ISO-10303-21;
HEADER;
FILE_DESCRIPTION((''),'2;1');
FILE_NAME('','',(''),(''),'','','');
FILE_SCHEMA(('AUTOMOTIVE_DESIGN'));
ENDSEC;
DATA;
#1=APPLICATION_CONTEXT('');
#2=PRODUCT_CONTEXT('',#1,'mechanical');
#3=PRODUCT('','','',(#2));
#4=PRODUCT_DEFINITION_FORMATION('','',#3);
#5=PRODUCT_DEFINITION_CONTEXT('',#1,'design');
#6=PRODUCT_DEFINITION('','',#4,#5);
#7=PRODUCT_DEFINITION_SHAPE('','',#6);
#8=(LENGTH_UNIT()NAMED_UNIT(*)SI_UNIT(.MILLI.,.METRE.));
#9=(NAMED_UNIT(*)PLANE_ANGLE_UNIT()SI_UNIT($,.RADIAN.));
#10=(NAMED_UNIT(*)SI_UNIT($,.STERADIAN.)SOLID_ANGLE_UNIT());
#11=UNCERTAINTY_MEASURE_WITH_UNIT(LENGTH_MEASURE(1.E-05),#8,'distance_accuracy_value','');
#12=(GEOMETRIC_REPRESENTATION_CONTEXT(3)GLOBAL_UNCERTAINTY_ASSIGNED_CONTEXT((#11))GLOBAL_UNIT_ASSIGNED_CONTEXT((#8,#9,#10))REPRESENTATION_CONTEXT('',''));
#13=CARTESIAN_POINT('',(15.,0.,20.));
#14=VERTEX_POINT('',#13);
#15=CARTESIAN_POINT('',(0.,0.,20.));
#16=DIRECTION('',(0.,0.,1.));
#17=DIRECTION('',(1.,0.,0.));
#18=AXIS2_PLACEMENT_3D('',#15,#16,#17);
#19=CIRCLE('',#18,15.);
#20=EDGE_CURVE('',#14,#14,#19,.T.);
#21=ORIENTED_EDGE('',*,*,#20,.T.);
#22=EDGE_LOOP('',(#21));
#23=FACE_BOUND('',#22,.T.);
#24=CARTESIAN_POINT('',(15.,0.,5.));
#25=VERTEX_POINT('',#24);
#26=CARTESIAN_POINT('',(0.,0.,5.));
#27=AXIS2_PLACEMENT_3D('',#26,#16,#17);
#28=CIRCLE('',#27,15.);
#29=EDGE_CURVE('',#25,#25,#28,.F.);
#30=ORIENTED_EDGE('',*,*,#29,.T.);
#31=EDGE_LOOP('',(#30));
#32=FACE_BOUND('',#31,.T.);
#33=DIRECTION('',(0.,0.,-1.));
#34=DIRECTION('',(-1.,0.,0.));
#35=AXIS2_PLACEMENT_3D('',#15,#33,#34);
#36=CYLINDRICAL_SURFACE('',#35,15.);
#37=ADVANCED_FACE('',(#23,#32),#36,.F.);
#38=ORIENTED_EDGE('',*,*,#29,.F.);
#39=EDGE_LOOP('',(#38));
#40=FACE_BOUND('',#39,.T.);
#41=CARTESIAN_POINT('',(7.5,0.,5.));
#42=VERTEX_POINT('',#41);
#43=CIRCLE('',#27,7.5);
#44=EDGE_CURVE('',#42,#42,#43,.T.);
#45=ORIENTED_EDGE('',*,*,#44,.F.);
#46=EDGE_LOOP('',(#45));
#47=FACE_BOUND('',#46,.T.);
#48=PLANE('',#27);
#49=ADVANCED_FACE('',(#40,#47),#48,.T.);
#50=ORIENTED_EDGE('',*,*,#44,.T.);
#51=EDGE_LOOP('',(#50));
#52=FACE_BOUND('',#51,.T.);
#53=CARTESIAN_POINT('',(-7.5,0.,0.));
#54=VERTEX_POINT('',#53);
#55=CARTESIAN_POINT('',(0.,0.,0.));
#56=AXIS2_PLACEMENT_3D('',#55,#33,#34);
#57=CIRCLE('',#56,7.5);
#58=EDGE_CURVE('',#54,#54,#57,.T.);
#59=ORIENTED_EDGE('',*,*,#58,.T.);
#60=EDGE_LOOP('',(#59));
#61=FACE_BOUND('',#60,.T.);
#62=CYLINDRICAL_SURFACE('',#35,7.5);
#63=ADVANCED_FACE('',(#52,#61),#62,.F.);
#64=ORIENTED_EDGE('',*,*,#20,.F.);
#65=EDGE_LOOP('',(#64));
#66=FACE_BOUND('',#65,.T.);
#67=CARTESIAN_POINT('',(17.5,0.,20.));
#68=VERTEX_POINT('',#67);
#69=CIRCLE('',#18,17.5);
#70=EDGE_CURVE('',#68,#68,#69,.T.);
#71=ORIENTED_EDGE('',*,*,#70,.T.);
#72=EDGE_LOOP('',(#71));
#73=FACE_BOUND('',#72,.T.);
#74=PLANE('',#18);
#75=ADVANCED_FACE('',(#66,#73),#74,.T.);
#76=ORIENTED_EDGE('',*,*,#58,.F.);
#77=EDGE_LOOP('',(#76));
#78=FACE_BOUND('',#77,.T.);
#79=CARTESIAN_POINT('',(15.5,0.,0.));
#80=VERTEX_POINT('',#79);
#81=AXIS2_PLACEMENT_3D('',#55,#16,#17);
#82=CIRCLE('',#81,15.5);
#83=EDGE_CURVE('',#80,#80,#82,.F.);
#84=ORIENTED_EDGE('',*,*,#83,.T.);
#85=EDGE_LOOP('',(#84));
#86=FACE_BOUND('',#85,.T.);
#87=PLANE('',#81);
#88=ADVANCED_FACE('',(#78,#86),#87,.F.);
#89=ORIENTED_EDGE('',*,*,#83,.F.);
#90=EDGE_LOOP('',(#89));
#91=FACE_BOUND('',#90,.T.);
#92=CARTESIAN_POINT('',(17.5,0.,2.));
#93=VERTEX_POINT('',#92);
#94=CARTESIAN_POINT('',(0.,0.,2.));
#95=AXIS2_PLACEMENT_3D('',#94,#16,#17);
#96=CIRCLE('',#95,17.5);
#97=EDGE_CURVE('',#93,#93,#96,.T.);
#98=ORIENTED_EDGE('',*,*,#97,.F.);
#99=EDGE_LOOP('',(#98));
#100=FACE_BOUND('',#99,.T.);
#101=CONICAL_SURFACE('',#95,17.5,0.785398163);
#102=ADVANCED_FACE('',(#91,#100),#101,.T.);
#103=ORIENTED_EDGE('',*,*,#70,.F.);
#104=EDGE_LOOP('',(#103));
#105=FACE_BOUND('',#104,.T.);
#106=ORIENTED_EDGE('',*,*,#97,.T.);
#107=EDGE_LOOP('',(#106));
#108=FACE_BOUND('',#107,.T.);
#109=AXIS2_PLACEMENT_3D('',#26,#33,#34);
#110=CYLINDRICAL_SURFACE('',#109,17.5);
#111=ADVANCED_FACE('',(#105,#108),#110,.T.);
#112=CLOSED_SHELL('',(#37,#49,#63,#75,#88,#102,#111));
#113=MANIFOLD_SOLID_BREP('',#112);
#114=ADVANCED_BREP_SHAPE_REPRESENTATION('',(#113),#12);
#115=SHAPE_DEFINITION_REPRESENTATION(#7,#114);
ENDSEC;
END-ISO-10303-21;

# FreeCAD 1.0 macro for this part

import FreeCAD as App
import Part
import Sketcher
from FreeCAD import Vector


def edges_at(feature, points):
    """Names of the edges that pass closest to the given points."""
    edges = feature.Shape.Edges
    near = lambda p: min(range(len(edges)), key=lambda i: edges[i].distToShape(Part.Vertex(*p))[0])
    return sorted({f"Edge{near(p) + 1}" for p in points})

doc = App.newDocument("Part")
body = doc.addObject("PartDesign::Body", "Body")

sketch1 = doc.addObject("Sketcher::SketchObject", "Sketch")
body.addObject(sketch1)
sketch1.AttachmentSupport = (doc.XY_Plane, [""])
sketch1.MapMode = "FlatFace"
sketch1.addGeometry(Part.Circle(Vector(0, 0, 0), Vector(0, 0, 1), 18), False)
sketch1.addConstraint([
    Sketcher.Constraint("Coincident", 0, 3, -1, 1),
    Sketcher.Constraint("Diameter", 0, 35.0),
])
pad1 = doc.addObject("PartDesign::Pad", "Pad")
body.addObject(pad1)
pad1.Profile = sketch1
pad1.Length = 5

sketch2 = doc.addObject("Sketcher::SketchObject", "Sketch001")
body.addObject(sketch2)
sketch2.AttachmentSupport = (doc.XY_Plane, [""])
sketch2.MapMode = "FlatFace"
sketch2.AttachmentOffset = App.Placement(Vector(0, 0, 5), App.Rotation())
sketch2.addGeometry([
    Part.Circle(Vector(0, 0, 0), Vector(0, 0, 1), 18),
    Part.Circle(Vector(0, 0, 0), Vector(0, 0, 1), 15),
], False)
sketch2.addConstraint([
    Sketcher.Constraint("Coincident", 0, 3, -1, 1),
    Sketcher.Constraint("Coincident", 1, 3, -1, 1),
    Sketcher.Constraint("Diameter", 0, 35.0),
    Sketcher.Constraint("Diameter", 1, 30.0),
])
pad2 = doc.addObject("PartDesign::Pad", "Pad001")
body.addObject(pad2)
pad2.Profile = sketch2
pad2.Length = 15

sketch3 = doc.addObject("Sketcher::SketchObject", "Sketch002")
body.addObject(sketch3)
sketch3.AttachmentSupport = (doc.XY_Plane, [""])
sketch3.MapMode = "FlatFace"
sketch3.addGeometry(Part.Circle(Vector(0, 0, 0), Vector(0, 0, 1), 8), False)
sketch3.addConstraint([
    Sketcher.Constraint("Coincident", 0, 3, -1, 1),
    Sketcher.Constraint("Diameter", 0, 15.0),
])
pocket1 = doc.addObject("PartDesign::Pocket", "Pocket")
body.addObject(pocket1)
pocket1.Profile = sketch3
pocket1.Type = "ThroughAll"
pocket1.Reversed = True
doc.recompute()

chamfer = doc.addObject("PartDesign::Chamfer", "Chamfer")
body.addObject(chamfer)
chamfer.Base = (pocket1, edges_at(pocket1, [(-17.5, 0, 0)]))
chamfer.Size = 2

doc.recompute()
